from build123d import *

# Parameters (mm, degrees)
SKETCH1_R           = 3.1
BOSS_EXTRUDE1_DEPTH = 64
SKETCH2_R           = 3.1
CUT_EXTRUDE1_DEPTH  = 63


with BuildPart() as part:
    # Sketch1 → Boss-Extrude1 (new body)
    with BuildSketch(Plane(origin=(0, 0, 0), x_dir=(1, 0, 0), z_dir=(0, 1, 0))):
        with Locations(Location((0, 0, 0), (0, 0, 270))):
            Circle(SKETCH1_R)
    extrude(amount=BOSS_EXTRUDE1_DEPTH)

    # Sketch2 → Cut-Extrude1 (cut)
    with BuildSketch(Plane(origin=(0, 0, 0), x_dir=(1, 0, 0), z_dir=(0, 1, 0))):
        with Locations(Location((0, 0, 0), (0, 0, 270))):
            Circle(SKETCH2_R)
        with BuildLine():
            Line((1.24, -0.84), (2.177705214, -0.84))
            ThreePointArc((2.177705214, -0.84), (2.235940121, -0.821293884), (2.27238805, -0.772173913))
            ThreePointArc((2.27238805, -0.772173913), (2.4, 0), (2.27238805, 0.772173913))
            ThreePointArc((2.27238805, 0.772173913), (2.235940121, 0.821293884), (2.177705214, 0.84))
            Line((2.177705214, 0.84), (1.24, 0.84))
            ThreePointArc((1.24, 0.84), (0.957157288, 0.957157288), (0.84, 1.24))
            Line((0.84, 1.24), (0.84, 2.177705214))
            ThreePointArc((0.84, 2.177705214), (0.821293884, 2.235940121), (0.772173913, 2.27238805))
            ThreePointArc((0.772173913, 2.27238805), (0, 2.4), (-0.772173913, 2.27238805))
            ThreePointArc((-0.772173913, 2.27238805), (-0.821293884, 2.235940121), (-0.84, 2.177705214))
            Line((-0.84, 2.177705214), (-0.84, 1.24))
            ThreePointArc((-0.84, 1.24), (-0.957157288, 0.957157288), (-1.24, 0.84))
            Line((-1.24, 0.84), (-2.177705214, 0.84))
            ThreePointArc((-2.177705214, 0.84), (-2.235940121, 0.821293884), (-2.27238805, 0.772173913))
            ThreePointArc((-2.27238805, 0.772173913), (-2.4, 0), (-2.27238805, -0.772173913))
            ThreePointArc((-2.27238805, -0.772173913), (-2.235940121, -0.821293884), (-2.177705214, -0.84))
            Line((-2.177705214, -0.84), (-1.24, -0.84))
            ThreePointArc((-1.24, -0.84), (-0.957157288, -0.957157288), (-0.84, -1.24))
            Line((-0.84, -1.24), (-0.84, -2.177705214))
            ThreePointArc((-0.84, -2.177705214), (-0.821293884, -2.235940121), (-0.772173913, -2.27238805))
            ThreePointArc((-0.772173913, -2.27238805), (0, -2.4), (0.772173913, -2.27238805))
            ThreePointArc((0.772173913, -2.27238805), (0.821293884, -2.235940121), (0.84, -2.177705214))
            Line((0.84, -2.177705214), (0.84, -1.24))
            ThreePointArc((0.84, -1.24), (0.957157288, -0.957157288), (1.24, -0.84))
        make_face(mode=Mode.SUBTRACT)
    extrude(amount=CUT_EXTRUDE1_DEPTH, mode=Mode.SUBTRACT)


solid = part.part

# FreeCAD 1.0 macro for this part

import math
import FreeCAD as App
import Part
import Sketcher
from FreeCAD import Vector

doc = App.newDocument("Part")
body = doc.addObject("PartDesign::Body", "Body")

# Sketch on XZ plane
sketch1 = body.newObject("Sketcher::SketchObject", "Sketch")
sketch1.AttachmentSupport = (doc.getObject("XZ_Plane"), [""])
sketch1.MapMode = "FlatFace"
sketch1.addGeometry(Part.Circle(Vector(0, 0, 0), Vector(0, 0, 1), 3.1), False)
sketch1.addConstraint([
    Sketcher.Constraint("Coincident", 0, 3, -1, 1),
    Sketcher.Constraint("Diameter", 0, 6.2),
])
pad1 = body.newObject("PartDesign::Pad", "Pad")
pad1.Profile = sketch1
pad1.Length = 64
pad1.Reversed = True

# Sketch on XZ plane
sketch2 = body.newObject("Sketcher::SketchObject", "Sketch001")
sketch2.AttachmentSupport = (doc.getObject("XZ_Plane"), [""])
sketch2.MapMode = "FlatFace"
sketch2.addGeometry([
    Part.Circle(Vector(0, 0, 0), Vector(0, 0, 1), 3.1),  # 0
    Part.LineSegment(Vector(2.18, 0.84, 0), Vector(1.24, 0.84, 0)),  # 1
    Part.ArcOfCircle(Part.Circle(Vector(1.24, 1.24, 0), Vector(0, 0, 1), 0.4), math.radians(-180), math.radians(-90)),  # 2
    Part.LineSegment(Vector(0.84, 1.24, 0), Vector(0.84, 2.18, 0)),  # 3
    Part.ArcOfCircle(Part.Circle(Vector(0.74, 2.18, 0), Vector(0, 0, 1), 0.1), math.radians(0), math.radians(71)),  # 4
    Part.ArcOfCircle(Part.Circle(Vector(0, 0, 0), Vector(0, 0, 1), 2.4), math.radians(71), math.radians(109)),  # 5
    Part.ArcOfCircle(Part.Circle(Vector(-0.74, 2.18, 0), Vector(0, 0, 1), 0.1), math.radians(109), math.radians(180)),  # 6
    Part.LineSegment(Vector(-0.84, 2.18, 0), Vector(-0.84, 1.24, 0)),  # 7
    Part.ArcOfCircle(Part.Circle(Vector(-1.24, 1.24, 0), Vector(0, 0, 1), 0.4), math.radians(-90), math.radians(0)),  # 8
    Part.LineSegment(Vector(-1.24, 0.84, 0), Vector(-2.18, 0.84, 0)),  # 9
    Part.ArcOfCircle(Part.Circle(Vector(-2.18, 0.74, 0), Vector(0, 0, 1), 0.1), math.radians(90), math.radians(161)),  # 10
    Part.ArcOfCircle(Part.Circle(Vector(0, 0, 0), Vector(0, 0, 1), 2.4), math.radians(161), math.radians(199)),  # 11
    Part.ArcOfCircle(Part.Circle(Vector(-2.18, -0.74, 0), Vector(0, 0, 1), 0.1), math.radians(-161), math.radians(-90)),  # 12
    Part.LineSegment(Vector(-2.18, -0.84, 0), Vector(-1.24, -0.84, 0)),  # 13
    Part.ArcOfCircle(Part.Circle(Vector(-1.24, -1.24, 0), Vector(0, 0, 1), 0.4), math.radians(0), math.radians(90)),  # 14
    Part.LineSegment(Vector(-0.84, -1.24, 0), Vector(-0.84, -2.18, 0)),  # 15
    Part.ArcOfCircle(Part.Circle(Vector(-0.74, -2.18, 0), Vector(0, 0, 1), 0.1), math.radians(-180), math.radians(-109)),  # 16
    Part.ArcOfCircle(Part.Circle(Vector(0, 0, 0), Vector(0, 0, 1), 2.4), math.radians(-109), math.radians(-71)),  # 17
    Part.ArcOfCircle(Part.Circle(Vector(0.74, -2.18, 0), Vector(0, 0, 1), 0.1), math.radians(-71), math.radians(0)),  # 18
    Part.LineSegment(Vector(0.84, -2.18, 0), Vector(0.84, -1.24, 0)),  # 19
    Part.ArcOfCircle(Part.Circle(Vector(1.24, -1.24, 0), Vector(0, 0, 1), 0.4), math.radians(90), math.radians(180)),  # 20
    Part.LineSegment(Vector(1.24, -0.84, 0), Vector(2.18, -0.84, 0)),  # 21
    Part.ArcOfCircle(Part.Circle(Vector(2.18, -0.74, 0), Vector(0, 0, 1), 0.1), math.radians(-90), math.radians(-19)),  # 22
    Part.ArcOfCircle(Part.Circle(Vector(0, 0, 0), Vector(0, 0, 1), 2.4), math.radians(-19), math.radians(19)),  # 23
    Part.ArcOfCircle(Part.Circle(Vector(2.18, 0.74, 0), Vector(0, 0, 1), 0.1), math.radians(19), math.radians(90)),  # 24
], False)
sketch2.addConstraint([
    Sketcher.Constraint("Tangent", 1, 2, 2, 2),
    Sketcher.Constraint("Tangent", 2, 1, 3, 1),
    Sketcher.Constraint("Tangent", 3, 2, 4, 1),
    Sketcher.Constraint("Tangent", 4, 2, 5, 1),
    Sketcher.Constraint("Tangent", 5, 2, 6, 1),
    Sketcher.Constraint("Tangent", 6, 2, 7, 1),
    Sketcher.Constraint("Tangent", 7, 2, 8, 2),
    Sketcher.Constraint("Tangent", 8, 1, 9, 1),
    Sketcher.Constraint("Tangent", 9, 2, 10, 1),
    Sketcher.Constraint("Tangent", 10, 2, 11, 1),
    Sketcher.Constraint("Tangent", 11, 2, 12, 1),
    Sketcher.Constraint("Tangent", 12, 2, 13, 1),
    Sketcher.Constraint("Tangent", 13, 2, 14, 2),
    Sketcher.Constraint("Tangent", 14, 1, 15, 1),
    Sketcher.Constraint("Tangent", 15, 2, 16, 1),
    Sketcher.Constraint("Tangent", 16, 2, 17, 1),
    Sketcher.Constraint("Tangent", 17, 2, 18, 1),
    Sketcher.Constraint("Tangent", 18, 2, 19, 1),
    Sketcher.Constraint("Tangent", 19, 2, 20, 2),
    Sketcher.Constraint("Tangent", 20, 1, 21, 1),
    Sketcher.Constraint("Tangent", 21, 2, 22, 1),
    Sketcher.Constraint("Tangent", 22, 2, 23, 1),
    Sketcher.Constraint("Tangent", 23, 2, 24, 1),
    Sketcher.Constraint("Tangent", 24, 2, 1, 1),
    Sketcher.Constraint("Horizontal", 1),
    Sketcher.Constraint("Vertical", 3),
    Sketcher.Constraint("Vertical", 7),
    Sketcher.Constraint("Horizontal", 9),
    Sketcher.Constraint("Horizontal", 13),
    Sketcher.Constraint("Vertical", 15),
    Sketcher.Constraint("Vertical", 19),
    Sketcher.Constraint("Horizontal", 21),
    Sketcher.Constraint("Coincident", 0, 3, -1, 1),
    Sketcher.Constraint("Coincident", 5, 3, -1, 1),
    Sketcher.Constraint("Coincident", 11, 3, -1, 1),
    Sketcher.Constraint("Coincident", 17, 3, -1, 1),
    Sketcher.Constraint("Coincident", 23, 3, -1, 1),
    Sketcher.Constraint("Equal", 4, 6),
    Sketcher.Constraint("Equal", 2, 8),
    Sketcher.Constraint("Equal", 6, 10),
    Sketcher.Constraint("Equal", 5, 11),
    Sketcher.Constraint("Equal", 10, 12),
    Sketcher.Constraint("Equal", 8, 14),
    Sketcher.Constraint("Equal", 12, 16),
    Sketcher.Constraint("Equal", 11, 17),
    Sketcher.Constraint("Equal", 16, 18),
    Sketcher.Constraint("Equal", 14, 20),
    Sketcher.Constraint("Equal", 18, 22),
    Sketcher.Constraint("Equal", 17, 23),
    Sketcher.Constraint("Equal", 22, 24),
    Sketcher.Constraint("Symmetric", 2, 3, 14, 3, -1, 1),
    Sketcher.Constraint("Symmetric", 8, 3, 20, 3, -1, 1),
    Sketcher.Constraint("Symmetric", 2, 3, 8, 3, -2),
    Sketcher.Constraint("Equal", 21, 3),
    Sketcher.Constraint("Diameter", 0, 6.2),
    Sketcher.Constraint("Radius", 2, 0.4),
    Sketcher.Constraint("Radius", 4, 0.1),
    Sketcher.Constraint("Radius", 5, 2.4),
    Sketcher.Constraint("DistanceX", -1, 1, 2, 3, 1.24),
])
pocket1 = body.newObject("PartDesign::Pocket", "Pocket")
pocket1.Profile = sketch2
pocket1.Length = 63

doc.recompute()
